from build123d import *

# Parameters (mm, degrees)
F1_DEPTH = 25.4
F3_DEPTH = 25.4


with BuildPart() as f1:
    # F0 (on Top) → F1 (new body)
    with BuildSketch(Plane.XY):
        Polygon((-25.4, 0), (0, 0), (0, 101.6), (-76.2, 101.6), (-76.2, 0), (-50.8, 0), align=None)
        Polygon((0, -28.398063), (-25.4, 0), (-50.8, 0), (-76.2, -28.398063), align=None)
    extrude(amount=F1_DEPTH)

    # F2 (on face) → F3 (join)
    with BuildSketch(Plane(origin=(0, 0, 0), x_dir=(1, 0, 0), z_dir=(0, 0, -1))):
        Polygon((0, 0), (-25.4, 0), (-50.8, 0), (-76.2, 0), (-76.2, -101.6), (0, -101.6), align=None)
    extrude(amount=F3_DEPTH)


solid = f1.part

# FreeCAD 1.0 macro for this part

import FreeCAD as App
import Part
import Sketcher
Q = App.Units.Quantity


def add_polygon(sketch, points):
    """Adds a closed chain of lines whose ends are joined by coincident constraints."""
    first, n = sketch.GeometryCount, len(points)
    for a, b in zip(points, points[1:] + points[:1]):
        sketch.addGeometry(Part.LineSegment(App.Vector(*a, 0), App.Vector(*b, 0)), False)
    for i in range(n):
        sketch.addConstraint(Sketcher.Constraint("Coincident", first + i, 2, first + (i + 1) % n, 1))

doc = App.newDocument("Part")
body = doc.addObject("PartDesign::Body", "Body")

# Sketch on XY plane
sketch1 = body.newObject("Sketcher::SketchObject", "Sketch")
sketch1.AttachmentSupport = (doc.getObject("XY_Plane"), [""])
sketch1.MapMode = "FlatFace"
add_polygon(sketch1, [(0, 0), (0, 102), (-76, 102), (-76, 0), (-51, 0), (-76, -28), (0, -28), (-25, 0)])  # lines 0-7
sketch1.addConstraint(Sketcher.Constraint("Vertical", 0))
sketch1.addConstraint(Sketcher.Constraint("Horizontal", 1))
sketch1.addConstraint(Sketcher.Constraint("Vertical", 2))
sketch1.addConstraint(Sketcher.Constraint("Horizontal", 3))
sketch1.addConstraint(Sketcher.Constraint("Horizontal", 5))
sketch1.addConstraint(Sketcher.Constraint("Horizontal", 7))
sketch1.addConstraint(Sketcher.Constraint("Coincident", 7, 2, -1, 1))
sketch1.addConstraint(Sketcher.Constraint("PointOnObject", 2, 2, -1))
sketch1.addConstraint(Sketcher.Constraint("PointOnObject", 5, 2, -2))
sketch1.addConstraint(Sketcher.Constraint("Vertical", 2, 2, 4, 2))
sketch1.addConstraint(Sketcher.Constraint("Equal", 3, 7))
sketch1.addConstraint(Sketcher.Constraint("DistanceX", 1, 2, 1, 1, Q("3 in")))
sketch1.addConstraint(Sketcher.Constraint("DistanceX", 3, 1, 3, 2, Q("1 in")))
sketch1.addConstraint(Sketcher.Constraint("DistanceY", 0, 1, 0, 2, Q("4 in")))
sketch1.addConstraint(Sketcher.Constraint("Distance", 4, Q("1.5 in")))
pad1 = body.newObject("PartDesign::Pad", "Pad")
pad1.Profile = sketch1
pad1.Length = Q("1 in")

# Sketch on XY plane
sketch2 = body.newObject("Sketcher::SketchObject", "Sketch001")
sketch2.AttachmentSupport = (doc.getObject("XY_Plane"), [""])
sketch2.MapMode = "FlatFace"
add_polygon(sketch2, [(0, 0), (-76, 0), (-76, 102), (0, 102)])  # lines 0-3
sketch2.addConstraint(Sketcher.Constraint("Horizontal", 0))
sketch2.addConstraint(Sketcher.Constraint("Vertical", 1))
sketch2.addConstraint(Sketcher.Constraint("Horizontal", 2))
sketch2.addConstraint(Sketcher.Constraint("Vertical", 3))
sketch2.addConstraint(Sketcher.Constraint("Coincident", 3, 2, -1, 1))
sketch2.addConstraint(Sketcher.Constraint("DistanceX", 0, 2, 0, 1, Q("3 in")))
sketch2.addConstraint(Sketcher.Constraint("DistanceY", 1, 1, 1, 2, Q("4 in")))
pad2 = body.newObject("PartDesign::Pad", "Pad001")
pad2.Profile = sketch2
pad2.Length = Q("1 in")
pad2.Reversed = True

doc.recompute()
